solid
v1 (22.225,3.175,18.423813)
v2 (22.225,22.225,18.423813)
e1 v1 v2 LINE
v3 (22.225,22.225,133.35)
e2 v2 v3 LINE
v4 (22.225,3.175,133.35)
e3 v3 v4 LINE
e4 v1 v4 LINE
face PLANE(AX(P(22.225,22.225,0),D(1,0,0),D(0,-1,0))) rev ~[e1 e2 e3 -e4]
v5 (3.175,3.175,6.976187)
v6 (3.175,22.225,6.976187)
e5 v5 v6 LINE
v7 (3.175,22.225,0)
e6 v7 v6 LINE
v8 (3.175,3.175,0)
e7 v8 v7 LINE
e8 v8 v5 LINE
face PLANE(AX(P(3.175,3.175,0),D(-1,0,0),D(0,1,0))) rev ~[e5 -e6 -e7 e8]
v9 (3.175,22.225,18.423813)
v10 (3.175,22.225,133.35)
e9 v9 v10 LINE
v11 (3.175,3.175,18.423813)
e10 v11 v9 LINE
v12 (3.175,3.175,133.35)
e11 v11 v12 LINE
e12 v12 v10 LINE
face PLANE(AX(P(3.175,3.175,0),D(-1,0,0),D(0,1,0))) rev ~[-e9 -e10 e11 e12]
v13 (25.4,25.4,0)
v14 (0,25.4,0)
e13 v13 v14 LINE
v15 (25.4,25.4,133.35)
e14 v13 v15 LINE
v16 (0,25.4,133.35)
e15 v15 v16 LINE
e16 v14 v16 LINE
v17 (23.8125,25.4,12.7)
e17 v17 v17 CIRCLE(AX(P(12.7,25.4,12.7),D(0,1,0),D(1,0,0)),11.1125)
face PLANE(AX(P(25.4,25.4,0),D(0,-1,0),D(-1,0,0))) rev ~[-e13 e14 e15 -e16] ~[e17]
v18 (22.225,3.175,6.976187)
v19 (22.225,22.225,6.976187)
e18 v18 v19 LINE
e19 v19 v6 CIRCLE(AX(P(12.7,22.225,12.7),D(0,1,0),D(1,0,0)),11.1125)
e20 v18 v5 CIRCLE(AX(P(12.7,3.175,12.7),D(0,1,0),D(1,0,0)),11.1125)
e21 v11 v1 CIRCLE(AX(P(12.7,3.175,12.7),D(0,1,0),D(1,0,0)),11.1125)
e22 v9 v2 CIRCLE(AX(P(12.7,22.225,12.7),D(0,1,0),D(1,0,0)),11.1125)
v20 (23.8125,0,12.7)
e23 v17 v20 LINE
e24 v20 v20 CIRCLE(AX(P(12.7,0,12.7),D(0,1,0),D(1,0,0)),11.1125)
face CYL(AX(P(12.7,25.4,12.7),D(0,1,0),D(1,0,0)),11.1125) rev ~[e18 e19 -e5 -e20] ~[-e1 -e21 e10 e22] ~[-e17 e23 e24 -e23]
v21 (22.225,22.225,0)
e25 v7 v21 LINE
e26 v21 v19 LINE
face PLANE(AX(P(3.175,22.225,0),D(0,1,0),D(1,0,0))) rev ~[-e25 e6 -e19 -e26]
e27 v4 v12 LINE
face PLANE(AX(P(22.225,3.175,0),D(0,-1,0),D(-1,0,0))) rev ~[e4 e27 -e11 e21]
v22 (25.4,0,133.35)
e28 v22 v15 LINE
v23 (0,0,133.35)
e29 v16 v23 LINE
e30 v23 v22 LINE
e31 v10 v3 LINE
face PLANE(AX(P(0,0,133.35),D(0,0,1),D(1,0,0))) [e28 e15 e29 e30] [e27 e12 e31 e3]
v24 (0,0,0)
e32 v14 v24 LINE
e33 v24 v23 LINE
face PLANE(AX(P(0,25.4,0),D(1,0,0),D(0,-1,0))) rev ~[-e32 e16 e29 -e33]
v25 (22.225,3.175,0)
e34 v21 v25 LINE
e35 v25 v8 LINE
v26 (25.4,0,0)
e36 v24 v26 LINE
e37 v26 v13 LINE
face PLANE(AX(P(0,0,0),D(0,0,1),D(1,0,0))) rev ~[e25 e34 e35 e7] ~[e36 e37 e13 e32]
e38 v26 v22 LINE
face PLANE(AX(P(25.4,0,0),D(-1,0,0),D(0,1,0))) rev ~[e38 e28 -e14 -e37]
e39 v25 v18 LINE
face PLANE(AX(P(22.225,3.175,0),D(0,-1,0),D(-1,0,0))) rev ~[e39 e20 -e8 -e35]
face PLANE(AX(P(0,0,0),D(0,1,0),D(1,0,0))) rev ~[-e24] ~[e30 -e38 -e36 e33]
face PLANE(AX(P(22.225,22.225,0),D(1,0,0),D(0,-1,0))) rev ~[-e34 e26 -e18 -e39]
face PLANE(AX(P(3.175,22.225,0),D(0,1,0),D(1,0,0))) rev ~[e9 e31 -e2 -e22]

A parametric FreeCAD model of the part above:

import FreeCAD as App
import Part
import Sketcher
Q = App.Units.Quantity

doc = App.newDocument("Part")
body = doc.addObject("PartDesign::Body", "Body")

sketch1 = doc.addObject("Sketcher::SketchObject", "Sketch")
body.addObject(sketch1)
sketch1.AttachmentSupport = (doc.XY_Plane, [""])
sketch1.MapMode = "FlatFace"
sketch1.addGeometry([
    Part.LineSegment(App.Vector(0, 25, 0), App.Vector(0, 0, 0)),
    Part.LineSegment(App.Vector(0, 0, 0), App.Vector(25, 0, 0)),
    Part.LineSegment(App.Vector(25, 0, 0), App.Vector(25, 25, 0)),
    Part.LineSegment(App.Vector(25, 25, 0), App.Vector(0, 25, 0)),
    Part.LineSegment(App.Vector(22, 22, 0), App.Vector(22, 3, 0)),
    Part.LineSegment(App.Vector(22, 3, 0), App.Vector(3, 3, 0)),
    Part.LineSegment(App.Vector(3, 3, 0), App.Vector(3, 22, 0)),
    Part.LineSegment(App.Vector(3, 22, 0), App.Vector(22, 22, 0)),
], False)
sketch1.addConstraint([
    Sketcher.Constraint("Coincident", 0, 2, 1, 1),
    Sketcher.Constraint("Coincident", 1, 2, 2, 1),
    Sketcher.Constraint("Coincident", 2, 2, 3, 1),
    Sketcher.Constraint("Coincident", 3, 2, 0, 1),
    Sketcher.Constraint("Coincident", 4, 2, 5, 1),
    Sketcher.Constraint("Coincident", 5, 2, 6, 1),
    Sketcher.Constraint("Coincident", 6, 2, 7, 1),
    Sketcher.Constraint("Coincident", 7, 2, 4, 1),
    Sketcher.Constraint("Vertical", 0),
    Sketcher.Constraint("Horizontal", 1),
    Sketcher.Constraint("Vertical", 2),
    Sketcher.Constraint("Horizontal", 3),
    Sketcher.Constraint("Vertical", 4),
    Sketcher.Constraint("Horizontal", 5),
    Sketcher.Constraint("Vertical", 6),
    Sketcher.Constraint("Horizontal", 7),
    Sketcher.Constraint("Coincident", 0, 2, -1, 1),
    Sketcher.Constraint("Equal", 3, 0),
    Sketcher.Constraint("Equal", 7, 4),
    Sketcher.Constraint("DistanceX", 1, 1, 1, 2, Q("1 in")),
    Sketcher.Constraint("DistanceY", -1, 1, 4, 2, Q("0.125 in")),
    Sketcher.Constraint("DistanceX", -1, 1, 5, 2, Q("0.125 in")),
    Sketcher.Constraint("DistanceX", 4, 2, 1, 2, Q("0.125 in")),
])
pad1 = doc.addObject("PartDesign::Pad", "Pad")
body.addObject(pad1)
pad1.Profile = sketch1
pad1.Length = Q("5.25 in")

sketch2 = doc.addObject("Sketcher::SketchObject", "Sketch001")
body.addObject(sketch2)
sketch2.AttachmentSupport = (doc.XZ_Plane, [""])
sketch2.MapMode = "FlatFace"
sketch2.AttachmentOffset = App.Placement(App.Vector(0, 0, -1 * 25.4), App.Rotation())
sketch2.addGeometry(Part.Circle(App.Vector(13, 13, 0), App.Vector(0, 0, 1), 11), False)
sketch2.addConstraint([
    Sketcher.Constraint("Diameter", 0, Q("0.875 in")),
    Sketcher.Constraint("DistanceX", -1, 1, 0, 3, Q("0.5 in")),
    Sketcher.Constraint("DistanceY", -1, 1, 0, 3, Q("0.5 in")),
])
pocket1 = doc.addObject("PartDesign::Pocket", "Pocket")
body.addObject(pocket1)
pocket1.Profile = sketch2
pocket1.Length = 81.3197
pocket1.Reversed = True

doc.recompute()
